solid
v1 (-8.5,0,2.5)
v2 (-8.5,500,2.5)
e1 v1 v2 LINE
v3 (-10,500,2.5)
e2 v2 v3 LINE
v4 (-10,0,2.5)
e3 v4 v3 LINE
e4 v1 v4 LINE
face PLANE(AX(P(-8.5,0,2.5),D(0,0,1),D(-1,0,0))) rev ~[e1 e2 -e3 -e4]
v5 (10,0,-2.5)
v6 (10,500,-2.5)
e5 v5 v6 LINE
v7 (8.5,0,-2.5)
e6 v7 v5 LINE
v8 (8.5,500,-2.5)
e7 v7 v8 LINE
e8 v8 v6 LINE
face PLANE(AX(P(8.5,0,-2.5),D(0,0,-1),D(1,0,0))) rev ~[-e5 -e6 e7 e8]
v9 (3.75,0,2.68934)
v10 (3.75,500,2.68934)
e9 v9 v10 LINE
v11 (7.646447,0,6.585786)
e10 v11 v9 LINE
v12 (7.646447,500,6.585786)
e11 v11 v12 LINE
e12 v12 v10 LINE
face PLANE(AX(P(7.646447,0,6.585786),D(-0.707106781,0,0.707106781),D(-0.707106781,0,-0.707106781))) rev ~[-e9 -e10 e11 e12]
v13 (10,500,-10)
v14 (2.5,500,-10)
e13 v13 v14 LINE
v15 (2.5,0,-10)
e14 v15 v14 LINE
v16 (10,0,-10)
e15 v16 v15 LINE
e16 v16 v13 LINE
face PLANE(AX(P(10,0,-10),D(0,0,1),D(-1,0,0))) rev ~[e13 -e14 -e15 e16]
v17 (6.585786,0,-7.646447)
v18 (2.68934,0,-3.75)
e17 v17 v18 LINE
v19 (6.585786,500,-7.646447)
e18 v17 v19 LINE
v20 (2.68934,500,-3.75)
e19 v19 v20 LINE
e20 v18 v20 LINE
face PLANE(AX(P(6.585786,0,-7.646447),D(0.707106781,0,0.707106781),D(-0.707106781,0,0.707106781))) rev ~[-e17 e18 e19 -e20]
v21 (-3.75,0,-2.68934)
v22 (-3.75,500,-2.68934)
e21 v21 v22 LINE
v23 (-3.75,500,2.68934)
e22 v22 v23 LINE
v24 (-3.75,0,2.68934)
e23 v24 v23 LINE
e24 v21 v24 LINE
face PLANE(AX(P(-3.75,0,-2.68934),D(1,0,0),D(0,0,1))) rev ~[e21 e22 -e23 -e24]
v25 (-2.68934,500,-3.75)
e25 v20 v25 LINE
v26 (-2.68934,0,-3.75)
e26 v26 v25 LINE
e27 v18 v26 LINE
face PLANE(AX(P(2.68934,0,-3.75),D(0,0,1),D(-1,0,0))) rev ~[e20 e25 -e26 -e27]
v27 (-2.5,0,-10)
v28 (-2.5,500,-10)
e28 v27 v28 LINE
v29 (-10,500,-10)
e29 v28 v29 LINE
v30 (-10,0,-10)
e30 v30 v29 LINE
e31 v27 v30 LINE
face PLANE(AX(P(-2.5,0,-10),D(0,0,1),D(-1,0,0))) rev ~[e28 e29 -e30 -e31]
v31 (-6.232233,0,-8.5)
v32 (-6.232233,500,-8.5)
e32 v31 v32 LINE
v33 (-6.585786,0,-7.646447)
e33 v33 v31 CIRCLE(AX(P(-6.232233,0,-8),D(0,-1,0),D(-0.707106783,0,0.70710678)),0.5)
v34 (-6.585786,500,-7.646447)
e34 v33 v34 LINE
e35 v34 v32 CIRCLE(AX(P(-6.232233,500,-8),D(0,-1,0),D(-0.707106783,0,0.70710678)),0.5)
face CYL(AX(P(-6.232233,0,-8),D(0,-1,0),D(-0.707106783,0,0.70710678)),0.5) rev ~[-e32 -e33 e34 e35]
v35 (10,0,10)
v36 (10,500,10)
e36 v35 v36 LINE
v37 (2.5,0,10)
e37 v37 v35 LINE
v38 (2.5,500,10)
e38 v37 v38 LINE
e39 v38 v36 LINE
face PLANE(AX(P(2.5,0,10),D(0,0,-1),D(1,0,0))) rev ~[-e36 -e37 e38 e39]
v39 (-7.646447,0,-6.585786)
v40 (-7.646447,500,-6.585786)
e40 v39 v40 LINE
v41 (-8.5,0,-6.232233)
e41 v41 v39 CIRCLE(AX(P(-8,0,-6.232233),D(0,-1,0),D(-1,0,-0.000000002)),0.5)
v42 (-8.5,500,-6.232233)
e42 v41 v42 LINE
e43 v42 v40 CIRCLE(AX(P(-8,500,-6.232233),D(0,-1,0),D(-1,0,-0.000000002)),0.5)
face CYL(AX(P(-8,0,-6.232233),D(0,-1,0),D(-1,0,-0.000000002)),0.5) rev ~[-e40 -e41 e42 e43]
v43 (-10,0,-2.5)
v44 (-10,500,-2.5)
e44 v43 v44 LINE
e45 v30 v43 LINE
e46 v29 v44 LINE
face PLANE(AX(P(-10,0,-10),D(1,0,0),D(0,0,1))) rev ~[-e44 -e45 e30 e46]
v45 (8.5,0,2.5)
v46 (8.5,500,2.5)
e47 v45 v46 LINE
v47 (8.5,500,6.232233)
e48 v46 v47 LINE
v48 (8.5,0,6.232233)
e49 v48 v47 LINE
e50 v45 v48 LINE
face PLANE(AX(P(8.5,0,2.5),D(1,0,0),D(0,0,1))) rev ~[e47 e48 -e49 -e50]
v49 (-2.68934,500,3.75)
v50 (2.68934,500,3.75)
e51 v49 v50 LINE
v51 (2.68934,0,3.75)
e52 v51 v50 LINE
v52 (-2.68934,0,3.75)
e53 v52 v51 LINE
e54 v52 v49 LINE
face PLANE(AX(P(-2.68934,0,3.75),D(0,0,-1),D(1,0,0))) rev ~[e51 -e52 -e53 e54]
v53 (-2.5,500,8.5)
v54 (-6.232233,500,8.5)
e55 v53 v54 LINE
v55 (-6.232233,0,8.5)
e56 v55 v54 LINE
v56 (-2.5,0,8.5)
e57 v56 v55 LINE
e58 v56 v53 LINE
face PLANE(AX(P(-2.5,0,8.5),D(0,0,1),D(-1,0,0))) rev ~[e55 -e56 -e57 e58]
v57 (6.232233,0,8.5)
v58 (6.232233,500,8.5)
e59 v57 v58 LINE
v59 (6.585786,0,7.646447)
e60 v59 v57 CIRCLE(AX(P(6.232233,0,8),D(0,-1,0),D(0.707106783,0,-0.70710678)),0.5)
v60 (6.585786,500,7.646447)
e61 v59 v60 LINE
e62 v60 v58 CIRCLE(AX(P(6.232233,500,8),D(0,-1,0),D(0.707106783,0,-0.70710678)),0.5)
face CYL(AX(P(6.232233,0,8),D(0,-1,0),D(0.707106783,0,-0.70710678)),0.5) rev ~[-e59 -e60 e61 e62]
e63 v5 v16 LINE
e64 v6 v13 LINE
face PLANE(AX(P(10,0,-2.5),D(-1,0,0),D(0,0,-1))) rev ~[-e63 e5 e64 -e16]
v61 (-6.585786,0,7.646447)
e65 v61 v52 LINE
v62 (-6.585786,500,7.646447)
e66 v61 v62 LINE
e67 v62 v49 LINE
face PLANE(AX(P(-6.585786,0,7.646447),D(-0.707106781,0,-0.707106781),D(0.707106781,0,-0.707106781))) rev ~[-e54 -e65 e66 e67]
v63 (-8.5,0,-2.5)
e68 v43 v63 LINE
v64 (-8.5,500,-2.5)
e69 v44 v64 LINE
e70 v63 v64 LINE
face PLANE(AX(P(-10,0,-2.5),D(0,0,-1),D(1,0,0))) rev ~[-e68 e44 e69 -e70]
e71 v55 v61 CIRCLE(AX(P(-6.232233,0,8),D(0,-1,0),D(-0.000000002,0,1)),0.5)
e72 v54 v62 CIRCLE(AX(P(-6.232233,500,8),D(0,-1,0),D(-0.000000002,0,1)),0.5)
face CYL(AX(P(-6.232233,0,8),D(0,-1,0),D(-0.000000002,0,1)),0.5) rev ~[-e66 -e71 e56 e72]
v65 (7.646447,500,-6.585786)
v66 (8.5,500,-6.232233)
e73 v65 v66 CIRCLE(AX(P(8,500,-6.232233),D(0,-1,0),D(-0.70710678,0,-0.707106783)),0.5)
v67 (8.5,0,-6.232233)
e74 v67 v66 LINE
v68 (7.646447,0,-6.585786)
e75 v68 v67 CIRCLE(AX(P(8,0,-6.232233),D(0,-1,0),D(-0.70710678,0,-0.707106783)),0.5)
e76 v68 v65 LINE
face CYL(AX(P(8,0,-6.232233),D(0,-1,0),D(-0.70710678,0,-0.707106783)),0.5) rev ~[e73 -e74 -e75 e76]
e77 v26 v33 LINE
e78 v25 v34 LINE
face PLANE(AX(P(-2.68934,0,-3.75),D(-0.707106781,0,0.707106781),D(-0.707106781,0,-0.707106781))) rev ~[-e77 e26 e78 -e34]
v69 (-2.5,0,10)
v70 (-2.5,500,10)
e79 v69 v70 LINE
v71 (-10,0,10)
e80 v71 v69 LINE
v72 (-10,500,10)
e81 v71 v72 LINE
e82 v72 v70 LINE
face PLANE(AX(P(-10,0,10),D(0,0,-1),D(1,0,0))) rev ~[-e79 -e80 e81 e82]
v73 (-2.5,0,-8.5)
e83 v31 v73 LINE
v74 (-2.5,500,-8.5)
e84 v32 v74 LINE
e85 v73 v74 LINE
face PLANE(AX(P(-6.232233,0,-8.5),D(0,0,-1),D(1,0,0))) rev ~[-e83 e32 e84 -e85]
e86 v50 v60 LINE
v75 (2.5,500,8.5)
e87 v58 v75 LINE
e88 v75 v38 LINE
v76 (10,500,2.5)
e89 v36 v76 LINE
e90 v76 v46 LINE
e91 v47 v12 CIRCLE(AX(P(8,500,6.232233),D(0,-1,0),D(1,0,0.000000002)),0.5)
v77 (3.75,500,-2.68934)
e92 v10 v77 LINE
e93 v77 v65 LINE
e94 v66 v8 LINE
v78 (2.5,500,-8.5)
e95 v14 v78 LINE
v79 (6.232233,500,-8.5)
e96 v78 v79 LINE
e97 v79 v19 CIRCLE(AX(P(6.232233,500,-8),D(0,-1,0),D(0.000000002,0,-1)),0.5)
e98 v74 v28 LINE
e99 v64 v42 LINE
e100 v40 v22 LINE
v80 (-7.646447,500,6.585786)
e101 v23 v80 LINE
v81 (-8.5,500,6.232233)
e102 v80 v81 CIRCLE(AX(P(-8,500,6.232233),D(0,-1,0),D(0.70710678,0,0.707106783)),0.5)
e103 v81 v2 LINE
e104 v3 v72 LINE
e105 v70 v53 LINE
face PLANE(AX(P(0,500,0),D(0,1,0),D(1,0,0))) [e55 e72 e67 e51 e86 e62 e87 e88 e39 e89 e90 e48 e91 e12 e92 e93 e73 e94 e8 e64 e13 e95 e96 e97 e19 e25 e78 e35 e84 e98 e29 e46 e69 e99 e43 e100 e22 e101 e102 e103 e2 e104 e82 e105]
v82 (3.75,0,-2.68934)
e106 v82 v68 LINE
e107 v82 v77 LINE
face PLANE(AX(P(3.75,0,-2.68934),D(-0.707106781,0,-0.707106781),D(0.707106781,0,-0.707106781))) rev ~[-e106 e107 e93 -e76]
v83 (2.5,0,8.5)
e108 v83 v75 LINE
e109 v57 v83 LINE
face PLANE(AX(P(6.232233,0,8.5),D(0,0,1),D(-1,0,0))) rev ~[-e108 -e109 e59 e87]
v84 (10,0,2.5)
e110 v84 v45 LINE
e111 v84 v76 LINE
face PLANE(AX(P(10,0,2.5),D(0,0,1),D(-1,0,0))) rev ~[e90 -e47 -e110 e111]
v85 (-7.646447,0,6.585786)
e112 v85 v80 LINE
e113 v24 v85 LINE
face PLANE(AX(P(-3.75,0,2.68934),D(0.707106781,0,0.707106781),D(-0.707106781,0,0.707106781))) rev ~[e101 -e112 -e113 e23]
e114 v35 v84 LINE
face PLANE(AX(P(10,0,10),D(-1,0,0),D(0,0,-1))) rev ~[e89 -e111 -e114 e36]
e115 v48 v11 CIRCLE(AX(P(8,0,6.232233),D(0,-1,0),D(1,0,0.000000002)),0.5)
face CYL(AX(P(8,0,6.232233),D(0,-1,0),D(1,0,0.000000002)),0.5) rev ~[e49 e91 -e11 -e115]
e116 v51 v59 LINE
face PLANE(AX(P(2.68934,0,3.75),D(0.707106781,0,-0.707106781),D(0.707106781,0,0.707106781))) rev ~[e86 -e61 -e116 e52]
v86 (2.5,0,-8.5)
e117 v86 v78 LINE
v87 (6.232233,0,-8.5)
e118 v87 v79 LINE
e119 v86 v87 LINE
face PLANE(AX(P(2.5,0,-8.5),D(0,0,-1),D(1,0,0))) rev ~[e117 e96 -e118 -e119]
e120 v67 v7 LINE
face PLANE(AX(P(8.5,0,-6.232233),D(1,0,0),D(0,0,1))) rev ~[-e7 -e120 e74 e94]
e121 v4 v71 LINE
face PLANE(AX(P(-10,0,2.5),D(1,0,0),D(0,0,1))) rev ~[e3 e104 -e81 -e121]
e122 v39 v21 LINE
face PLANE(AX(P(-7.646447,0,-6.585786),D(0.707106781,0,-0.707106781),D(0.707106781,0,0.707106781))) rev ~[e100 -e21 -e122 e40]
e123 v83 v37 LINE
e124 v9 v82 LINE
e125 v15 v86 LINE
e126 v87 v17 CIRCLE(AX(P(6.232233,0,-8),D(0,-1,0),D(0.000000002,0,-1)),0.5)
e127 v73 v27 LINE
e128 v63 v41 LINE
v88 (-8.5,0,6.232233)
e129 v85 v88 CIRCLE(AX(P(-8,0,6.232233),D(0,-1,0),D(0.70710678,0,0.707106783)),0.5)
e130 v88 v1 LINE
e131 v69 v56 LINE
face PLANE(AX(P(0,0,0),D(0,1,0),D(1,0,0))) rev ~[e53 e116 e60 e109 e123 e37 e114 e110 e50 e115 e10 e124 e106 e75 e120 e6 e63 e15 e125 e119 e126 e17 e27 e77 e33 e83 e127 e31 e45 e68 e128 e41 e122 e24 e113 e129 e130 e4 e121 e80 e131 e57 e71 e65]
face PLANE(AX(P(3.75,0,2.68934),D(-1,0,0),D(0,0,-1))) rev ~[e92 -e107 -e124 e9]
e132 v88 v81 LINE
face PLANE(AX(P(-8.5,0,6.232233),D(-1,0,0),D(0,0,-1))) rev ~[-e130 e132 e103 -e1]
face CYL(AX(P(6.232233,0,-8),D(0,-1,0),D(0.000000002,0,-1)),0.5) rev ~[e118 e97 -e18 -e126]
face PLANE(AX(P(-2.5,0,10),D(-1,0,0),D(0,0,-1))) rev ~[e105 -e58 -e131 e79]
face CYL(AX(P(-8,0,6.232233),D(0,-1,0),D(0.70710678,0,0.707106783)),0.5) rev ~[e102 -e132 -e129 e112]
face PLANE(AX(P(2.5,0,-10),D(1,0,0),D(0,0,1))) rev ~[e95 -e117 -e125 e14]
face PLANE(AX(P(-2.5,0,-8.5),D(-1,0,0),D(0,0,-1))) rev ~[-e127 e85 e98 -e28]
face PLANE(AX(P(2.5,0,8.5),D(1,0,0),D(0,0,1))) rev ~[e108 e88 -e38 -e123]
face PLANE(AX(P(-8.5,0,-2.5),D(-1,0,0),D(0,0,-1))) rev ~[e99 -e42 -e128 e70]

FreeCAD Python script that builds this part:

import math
import FreeCAD as App
import Part
import Sketcher
Q = App.Units.Quantity

doc = App.newDocument("Part")
body = doc.addObject("PartDesign::Body", "Body")

# Sketch on XZ plane
sketch1 = doc.addObject("Sketcher::SketchObject", "Sketch")
body.addObject(sketch1)
sketch1.AttachmentSupport = (doc.XZ_Plane, [""])
sketch1.MapMode = "FlatFace"
sketch1.addGeometry([
    Part.LineSegment(App.Vector(-10, 2.5, 0), App.Vector(-10, 10, 0)),  # 0
    Part.LineSegment(App.Vector(-10, 10, 0), App.Vector(-2.5, 10, 0)),  # 1
    Part.LineSegment(App.Vector(-2.5, 10, 0), App.Vector(-2.5, 8.5, 0)),  # 2
    Part.LineSegment(App.Vector(-2.5, 8.5, 0), App.Vector(-6.232233, 8.5, 0)),  # 3
    Part.ArcOfCircle(Part.Circle(App.Vector(-6.232233, 8, 0), App.Vector(0, 0, 1), 0.5), math.radians(90), math.radians(225)),  # 4
    Part.LineSegment(App.Vector(-6.585786, 7.646447, 0), App.Vector(-2.68934, 3.75, 0)),  # 5
    Part.LineSegment(App.Vector(-2.68934, 3.75, 0), App.Vector(2.68934, 3.75, 0)),  # 6
    Part.LineSegment(App.Vector(2.68934, 3.75, 0), App.Vector(6.585786, 7.646447, 0)),  # 7
    Part.ArcOfCircle(Part.Circle(App.Vector(6.232233, 8, 0), App.Vector(0, 0, 1), 0.5), math.radians(-45), math.radians(90)),  # 8
    Part.LineSegment(App.Vector(6.232233, 8.5, 0), App.Vector(2.5, 8.5, 0)),  # 9
    Part.LineSegment(App.Vector(2.5, 8.5, 0), App.Vector(2.5, 10, 0)),  # 10
    Part.LineSegment(App.Vector(2.5, 10, 0), App.Vector(10, 10, 0)),  # 11
    Part.LineSegment(App.Vector(10, 10, 0), App.Vector(10, 2.5, 0)),  # 12
    Part.LineSegment(App.Vector(10, 2.5, 0), App.Vector(8.5, 2.5, 0)),  # 13
    Part.LineSegment(App.Vector(8.5, 2.5, 0), App.Vector(8.5, 6.232233, 0)),  # 14
    Part.ArcOfCircle(Part.Circle(App.Vector(8, 6.232233, 0), App.Vector(0, 0, 1), 0.5), math.radians(0), math.radians(135)),  # 15
    Part.LineSegment(App.Vector(7.646447, 6.585786, 0), App.Vector(3.75, 2.68934, 0)),  # 16
    Part.LineSegment(App.Vector(3.75, 2.68934, 0), App.Vector(3.75, -2.68934, 0)),  # 17
    Part.LineSegment(App.Vector(3.75, -2.68934, 0), App.Vector(7.646447, -6.585786, 0)),  # 18
    Part.ArcOfCircle(Part.Circle(App.Vector(8, -6.232233, 0), App.Vector(0, 0, 1), 0.5), math.radians(-135), math.radians(0)),  # 19
    Part.LineSegment(App.Vector(8.5, -6.232233, 0), App.Vector(8.5, -2.5, 0)),  # 20
    Part.LineSegment(App.Vector(8.5, -2.5, 0), App.Vector(10, -2.5, 0)),  # 21
    Part.LineSegment(App.Vector(10, -2.5, 0), App.Vector(10, -10, 0)),  # 22
    Part.LineSegment(App.Vector(10, -10, 0), App.Vector(2.5, -10, 0)),  # 23
    Part.LineSegment(App.Vector(2.5, -10, 0), App.Vector(2.5, -8.5, 0)),  # 24
    Part.LineSegment(App.Vector(2.5, -8.5, 0), App.Vector(6.232233, -8.5, 0)),  # 25
    Part.ArcOfCircle(Part.Circle(App.Vector(6.232233, -8, 0), App.Vector(0, 0, 1), 0.5), math.radians(-90), math.radians(45)),  # 26
    Part.LineSegment(App.Vector(6.585786, -7.646447, 0), App.Vector(2.68934, -3.75, 0)),  # 27
    Part.LineSegment(App.Vector(2.68934, -3.75, 0), App.Vector(-2.68934, -3.75, 0)),  # 28
    Part.LineSegment(App.Vector(-2.68934, -3.75, 0), App.Vector(-6.585786, -7.646447, 0)),  # 29
    Part.ArcOfCircle(Part.Circle(App.Vector(-6.232233, -8, 0), App.Vector(0, 0, 1), 0.5), math.radians(135), math.radians(270)),  # 30
    Part.LineSegment(App.Vector(-6.232233, -8.5, 0), App.Vector(-2.5, -8.5, 0)),  # 31
    Part.LineSegment(App.Vector(-2.5, -8.5, 0), App.Vector(-2.5, -10, 0)),  # 32
    Part.LineSegment(App.Vector(-2.5, -10, 0), App.Vector(-10, -10, 0)),  # 33
    Part.LineSegment(App.Vector(-10, -10, 0), App.Vector(-10, -2.5, 0)),  # 34
    Part.LineSegment(App.Vector(-10, -2.5, 0), App.Vector(-8.5, -2.5, 0)),  # 35
    Part.LineSegment(App.Vector(-8.5, -2.5, 0), App.Vector(-8.5, -6.232233, 0)),  # 36
    Part.ArcOfCircle(Part.Circle(App.Vector(-8, -6.232233, 0), App.Vector(0, 0, 1), 0.5), math.radians(-180), math.radians(-45)),  # 37
    Part.LineSegment(App.Vector(-7.646447, -6.585786, 0), App.Vector(-3.75, -2.68934, 0)),  # 38
    Part.LineSegment(App.Vector(-3.75, -2.68934, 0), App.Vector(-3.75, 2.68934, 0)),  # 39
    Part.LineSegment(App.Vector(-3.75, 2.68934, 0), App.Vector(-7.646447, 6.585786, 0)),  # 40
    Part.ArcOfCircle(Part.Circle(App.Vector(-8, 6.232233, 0), App.Vector(0, 0, 1), 0.5), math.radians(45), math.radians(180)),  # 41
    Part.LineSegment(App.Vector(-8.5, 6.232233, 0), App.Vector(-8.5, 2.5, 0)),  # 42
    Part.LineSegment(App.Vector(-8.5, 2.5, 0), App.Vector(-10, 2.5, 0)),  # 43
], False)
sketch1.addConstraint([
    Sketcher.Constraint("Coincident", 0, 2, 1, 1),
    Sketcher.Constraint("Coincident", 1, 2, 2, 1),
    Sketcher.Constraint("Coincident", 2, 2, 3, 1),
    Sketcher.Constraint("Tangent", 3, 2, 4, 1),
    Sketcher.Constraint("Tangent", 4, 2, 5, 1),
    Sketcher.Constraint("Coincident", 5, 2, 6, 1),
    Sketcher.Constraint("Coincident", 6, 2, 7, 1),
    Sketcher.Constraint("Tangent", 7, 2, 8, 1),
    Sketcher.Constraint("Tangent", 8, 2, 9, 1),
    Sketcher.Constraint("Coincident", 9, 2, 10, 1),
    Sketcher.Constraint("Coincident", 10, 2, 11, 1),
    Sketcher.Constraint("Coincident", 11, 2, 12, 1),
    Sketcher.Constraint("Coincident", 12, 2, 13, 1),
    Sketcher.Constraint("Coincident", 13, 2, 14, 1),
    Sketcher.Constraint("Tangent", 14, 2, 15, 1),
    Sketcher.Constraint("Tangent", 15, 2, 16, 1),
    Sketcher.Constraint("Coincident", 16, 2, 17, 1),
    Sketcher.Constraint("Coincident", 17, 2, 18, 1),
    Sketcher.Constraint("Tangent", 18, 2, 19, 1),
    Sketcher.Constraint("Tangent", 19, 2, 20, 1),
    Sketcher.Constraint("Coincident", 20, 2, 21, 1),
    Sketcher.Constraint("Coincident", 21, 2, 22, 1),
    Sketcher.Constraint("Coincident", 22, 2, 23, 1),
    Sketcher.Constraint("Coincident", 23, 2, 24, 1),
    Sketcher.Constraint("Coincident", 24, 2, 25, 1),
    Sketcher.Constraint("Tangent", 25, 2, 26, 1),
    Sketcher.Constraint("Tangent", 26, 2, 27, 1),
    Sketcher.Constraint("Coincident", 27, 2, 28, 1),
    Sketcher.Constraint("Coincident", 28, 2, 29, 1),
    Sketcher.Constraint("Tangent", 29, 2, 30, 1),
    Sketcher.Constraint("Tangent", 30, 2, 31, 1),
    Sketcher.Constraint("Coincident", 31, 2, 32, 1),
    Sketcher.Constraint("Coincident", 32, 2, 33, 1),
    Sketcher.Constraint("Coincident", 33, 2, 34, 1),
    Sketcher.Constraint("Coincident", 34, 2, 35, 1),
    Sketcher.Constraint("Coincident", 35, 2, 36, 1),
    Sketcher.Constraint("Tangent", 36, 2, 37, 1),
    Sketcher.Constraint("Tangent", 37, 2, 38, 1),
    Sketcher.Constraint("Coincident", 38, 2, 39, 1),
    Sketcher.Constraint("Coincident", 39, 2, 40, 1),
    Sketcher.Constraint("Tangent", 40, 2, 41, 1),
    Sketcher.Constraint("Tangent", 41, 2, 42, 1),
    Sketcher.Constraint("Coincident", 42, 2, 43, 1),
    Sketcher.Constraint("Coincident", 43, 2, 0, 1),
    Sketcher.Constraint("Vertical", 0),
    Sketcher.Constraint("Horizontal", 1),
    Sketcher.Constraint("Vertical", 2),
    Sketcher.Constraint("Horizontal", 3),
    Sketcher.Constraint("Horizontal", 6),
    Sketcher.Constraint("Horizontal", 9),
    Sketcher.Constraint("Vertical", 10),
    Sketcher.Constraint("Horizontal", 11),
    Sketcher.Constraint("Vertical", 12),
    Sketcher.Constraint("Horizontal", 13),
    Sketcher.Constraint("Vertical", 14),
    Sketcher.Constraint("Vertical", 17),
    Sketcher.Constraint("Vertical", 20),
    Sketcher.Constraint("Horizontal", 21),
    Sketcher.Constraint("Vertical", 22),
    Sketcher.Constraint("Horizontal", 23),
    Sketcher.Constraint("Vertical", 24),
    Sketcher.Constraint("Horizontal", 25),
    Sketcher.Constraint("Horizontal", 28),
    Sketcher.Constraint("Horizontal", 31),
    Sketcher.Constraint("Vertical", 32),
    Sketcher.Constraint("Horizontal", 33),
    Sketcher.Constraint("Vertical", 34),
    Sketcher.Constraint("Horizontal", 35),
    Sketcher.Constraint("Vertical", 36),
    Sketcher.Constraint("Vertical", 39),
    Sketcher.Constraint("Vertical", 42),
    Sketcher.Constraint("Horizontal", 43),
    Sketcher.Constraint("Equal", 4, 8),
    Sketcher.Constraint("Equal", 8, 15),
    Sketcher.Constraint("Equal", 15, 19),
    Sketcher.Constraint("Equal", 19, 26),
    Sketcher.Constraint("Equal", 26, 30),
    Sketcher.Constraint("Equal", 30, 37),
    Sketcher.Constraint("Equal", 37, 41),
    Sketcher.Constraint("Symmetric", 4, 3, 26, 3, -1, 1),
    Sketcher.Constraint("Symmetric", 8, 3, 30, 3, -1, 1),
    Sketcher.Constraint("Symmetric", 15, 3, 37, 3, -1, 1),
    Sketcher.Constraint("Symmetric", 19, 3, 41, 3, -1, 1),
    Sketcher.Constraint("Symmetric", 0, 2, 22, 2, -1, 1),
    Sketcher.Constraint("Symmetric", 5, 2, 27, 2, -1, 1),
    Sketcher.Constraint("Symmetric", 10, 2, 32, 2, -1, 1),
    Sketcher.Constraint("Symmetric", 12, 2, 34, 2, -1, 1),
    Sketcher.Constraint("Symmetric", 16, 2, 38, 2, -1, 1),
    Sketcher.Constraint("Symmetric", 4, 3, 8, 3, -2),
    Sketcher.Constraint("Symmetric", 19, 3, 37, 3, -2),
    Sketcher.Constraint("Symmetric", 1, 2, 10, 2, -2),
    Sketcher.Constraint("Symmetric", 21, 2, 34, 2, -2),
    Sketcher.Constraint("Perpendicular", 5, 7),
    Sketcher.Constraint("Parallel", 7, 16),
    Sketcher.Constraint("Perpendicular", 16, 18),
    Sketcher.Constraint("Perpendicular", 27, 29),
    Sketcher.Constraint("Perpendicular", 38, 40),
    Sketcher.Constraint("Horizontal", 4, 2, 7, 2),
    Sketcher.Constraint("Horizontal", 13, 2, 42, 2),
    Sketcher.Constraint("Vertical", 10, 2, 23, 2),
    Sketcher.Constraint("Equal", 33, 0),
    Sketcher.Constraint("Equal", 43, 2),
    Sketcher.Constraint("Equal", 31, 14),
    Sketcher.Constraint("Equal", 28, 17),
    Sketcher.Constraint("Equal", 7, 16),
    Sketcher.Constraint("Radius", 4, Q("0.5 mm")),
    Sketcher.Constraint("DistanceX", 1, 1, 1, 2, Q("7.5 mm")),
    Sketcher.Constraint("DistanceX", 13, 2, 13, 1, Q("1.5 mm")),
    Sketcher.Constraint("DistanceY", -1, 1, 4, 3, Q("8 mm")),
    Sketcher.Constraint("DistanceY", -1, 1, 5, 2, Q("3.75 mm")),
    Sketcher.Constraint("DistanceX", 6, 1, 6, 2, Q("5.37868 mm")),
])
pad1 = doc.addObject("PartDesign::Pad", "Pad")
body.addObject(pad1)
pad1.Profile = sketch1
pad1.Length = 500
pad1.Reversed = True

doc.recompute()
